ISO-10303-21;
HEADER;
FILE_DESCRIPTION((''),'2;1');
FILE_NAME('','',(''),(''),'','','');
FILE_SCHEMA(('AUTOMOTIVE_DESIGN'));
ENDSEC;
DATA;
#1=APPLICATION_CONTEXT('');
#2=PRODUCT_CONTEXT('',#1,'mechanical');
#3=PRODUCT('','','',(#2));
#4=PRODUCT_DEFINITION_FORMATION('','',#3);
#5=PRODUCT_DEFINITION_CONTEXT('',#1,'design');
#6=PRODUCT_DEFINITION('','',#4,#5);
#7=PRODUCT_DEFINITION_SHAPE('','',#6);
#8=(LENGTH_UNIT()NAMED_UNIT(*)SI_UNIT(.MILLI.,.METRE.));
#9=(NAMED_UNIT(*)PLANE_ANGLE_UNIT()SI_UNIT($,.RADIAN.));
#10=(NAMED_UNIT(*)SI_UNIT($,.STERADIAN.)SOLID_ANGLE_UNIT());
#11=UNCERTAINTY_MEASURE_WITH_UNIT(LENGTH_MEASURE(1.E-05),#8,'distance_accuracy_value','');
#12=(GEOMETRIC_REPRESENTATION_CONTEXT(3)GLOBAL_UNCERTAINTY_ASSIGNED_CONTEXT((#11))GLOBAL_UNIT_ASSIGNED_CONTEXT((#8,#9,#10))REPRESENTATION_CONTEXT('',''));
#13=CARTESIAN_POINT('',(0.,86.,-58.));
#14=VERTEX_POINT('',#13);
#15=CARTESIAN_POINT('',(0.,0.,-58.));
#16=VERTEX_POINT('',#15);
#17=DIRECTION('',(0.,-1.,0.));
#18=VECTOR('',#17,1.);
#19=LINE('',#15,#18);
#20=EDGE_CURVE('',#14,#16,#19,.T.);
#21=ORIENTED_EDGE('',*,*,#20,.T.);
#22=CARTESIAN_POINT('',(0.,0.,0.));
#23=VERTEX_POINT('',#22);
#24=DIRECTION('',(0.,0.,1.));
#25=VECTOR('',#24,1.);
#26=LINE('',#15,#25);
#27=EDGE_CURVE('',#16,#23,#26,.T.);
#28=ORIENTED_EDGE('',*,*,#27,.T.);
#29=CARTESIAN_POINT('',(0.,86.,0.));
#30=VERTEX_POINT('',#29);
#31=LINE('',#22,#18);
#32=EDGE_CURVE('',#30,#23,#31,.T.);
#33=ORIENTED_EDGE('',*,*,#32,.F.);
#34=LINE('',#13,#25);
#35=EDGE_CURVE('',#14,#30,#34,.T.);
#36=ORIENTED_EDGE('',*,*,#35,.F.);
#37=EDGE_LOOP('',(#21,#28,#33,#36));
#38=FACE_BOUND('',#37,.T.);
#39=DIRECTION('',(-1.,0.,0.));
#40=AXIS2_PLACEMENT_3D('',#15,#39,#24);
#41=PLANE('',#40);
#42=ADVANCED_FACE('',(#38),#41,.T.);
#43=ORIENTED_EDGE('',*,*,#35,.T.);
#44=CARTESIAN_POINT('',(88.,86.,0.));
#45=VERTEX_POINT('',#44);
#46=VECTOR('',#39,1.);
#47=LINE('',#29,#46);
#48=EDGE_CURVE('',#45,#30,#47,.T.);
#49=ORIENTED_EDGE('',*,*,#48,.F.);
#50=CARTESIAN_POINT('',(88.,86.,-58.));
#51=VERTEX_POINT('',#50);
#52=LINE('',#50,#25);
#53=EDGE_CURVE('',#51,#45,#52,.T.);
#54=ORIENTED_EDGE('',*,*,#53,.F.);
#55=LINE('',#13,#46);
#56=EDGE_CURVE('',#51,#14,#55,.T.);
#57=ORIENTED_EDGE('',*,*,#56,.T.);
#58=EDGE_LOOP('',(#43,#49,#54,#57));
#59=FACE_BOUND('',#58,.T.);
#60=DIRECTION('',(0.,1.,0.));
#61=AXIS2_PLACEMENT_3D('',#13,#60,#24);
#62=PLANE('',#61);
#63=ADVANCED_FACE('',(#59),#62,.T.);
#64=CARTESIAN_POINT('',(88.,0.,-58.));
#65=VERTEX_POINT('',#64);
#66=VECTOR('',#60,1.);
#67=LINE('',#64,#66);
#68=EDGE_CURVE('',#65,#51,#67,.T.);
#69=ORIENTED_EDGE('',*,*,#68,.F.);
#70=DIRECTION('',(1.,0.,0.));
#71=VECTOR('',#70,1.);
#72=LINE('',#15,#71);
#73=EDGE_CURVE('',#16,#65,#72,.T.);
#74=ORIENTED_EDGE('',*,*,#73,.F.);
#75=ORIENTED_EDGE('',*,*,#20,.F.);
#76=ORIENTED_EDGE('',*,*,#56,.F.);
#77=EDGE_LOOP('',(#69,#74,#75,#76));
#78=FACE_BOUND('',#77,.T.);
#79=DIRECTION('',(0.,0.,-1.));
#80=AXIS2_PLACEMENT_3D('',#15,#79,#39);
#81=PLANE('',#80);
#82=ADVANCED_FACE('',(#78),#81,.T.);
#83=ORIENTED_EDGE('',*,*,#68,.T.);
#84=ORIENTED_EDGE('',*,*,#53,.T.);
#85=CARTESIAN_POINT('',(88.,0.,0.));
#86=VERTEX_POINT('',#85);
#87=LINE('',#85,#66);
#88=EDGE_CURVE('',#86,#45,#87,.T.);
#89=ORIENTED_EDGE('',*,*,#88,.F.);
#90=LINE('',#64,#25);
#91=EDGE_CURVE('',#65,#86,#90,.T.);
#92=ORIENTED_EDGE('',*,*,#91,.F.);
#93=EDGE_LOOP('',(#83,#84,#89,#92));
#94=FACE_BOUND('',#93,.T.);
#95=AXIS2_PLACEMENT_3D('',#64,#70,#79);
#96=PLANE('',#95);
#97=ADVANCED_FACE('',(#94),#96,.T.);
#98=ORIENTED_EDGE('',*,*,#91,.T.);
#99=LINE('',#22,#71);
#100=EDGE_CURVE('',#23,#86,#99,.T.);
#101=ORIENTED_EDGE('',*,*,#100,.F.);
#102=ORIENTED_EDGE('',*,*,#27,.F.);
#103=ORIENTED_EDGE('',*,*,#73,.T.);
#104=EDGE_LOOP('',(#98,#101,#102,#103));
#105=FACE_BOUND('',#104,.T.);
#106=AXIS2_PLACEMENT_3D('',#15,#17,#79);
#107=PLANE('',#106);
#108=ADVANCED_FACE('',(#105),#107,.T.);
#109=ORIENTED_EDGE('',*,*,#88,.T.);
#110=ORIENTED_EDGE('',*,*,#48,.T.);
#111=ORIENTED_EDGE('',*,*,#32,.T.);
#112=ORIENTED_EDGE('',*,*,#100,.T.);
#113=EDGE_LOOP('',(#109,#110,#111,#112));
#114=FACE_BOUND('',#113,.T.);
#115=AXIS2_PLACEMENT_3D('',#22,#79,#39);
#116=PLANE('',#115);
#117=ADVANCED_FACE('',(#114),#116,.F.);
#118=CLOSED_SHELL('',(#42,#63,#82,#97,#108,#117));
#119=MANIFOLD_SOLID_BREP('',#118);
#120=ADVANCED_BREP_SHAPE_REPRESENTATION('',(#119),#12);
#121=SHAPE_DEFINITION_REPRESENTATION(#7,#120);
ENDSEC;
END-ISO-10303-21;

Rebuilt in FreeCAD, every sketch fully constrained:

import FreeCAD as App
import Part
import Sketcher

V = App.Vector


def add_polygon(sketch, points):
    """Adds a closed chain of lines whose ends are joined by coincident constraints."""
    first, n = sketch.GeometryCount, len(points)
    for a, b in zip(points, points[1:] + points[:1]):
        sketch.addGeometry(Part.LineSegment(App.Vector(*a, 0), App.Vector(*b, 0)), False)
    for i in range(n):
        sketch.addConstraint(Sketcher.Constraint("Coincident", first + i, 2, first + (i + 1) % n, 1))

doc = App.newDocument("Part")
body = doc.addObject("PartDesign::Body", "Body")

# Sketch on XY plane
sketch1 = doc.addObject("Sketcher::SketchObject", "Sketch")
body.addObject(sketch1)
sketch1.AttachmentSupport = (doc.XY_Plane, [""])
sketch1.MapMode = "FlatFace"
add_polygon(sketch1, [(0, 86), (0, 0), (88, 0), (88, 86)])  # lines 0-3
sketch1.addConstraint([
    Sketcher.Constraint("Vertical", 0),
    Sketcher.Constraint("Horizontal", 1),
    Sketcher.Constraint("Vertical", 2),
    Sketcher.Constraint("Horizontal", 3),
    Sketcher.Constraint("Coincident", 0, 2, -1, 1),
    Sketcher.Constraint("DistanceX", 1, 1, 1, 2, 88.0),
    Sketcher.Constraint("DistanceY", 0, 2, 0, 1, 86.0),
])
pad1 = doc.addObject("PartDesign::Pad", "Pad")
body.addObject(pad1)
pad1.Profile = sketch1
pad1.Length = 58
pad1.Reversed = True

doc.recompute()
